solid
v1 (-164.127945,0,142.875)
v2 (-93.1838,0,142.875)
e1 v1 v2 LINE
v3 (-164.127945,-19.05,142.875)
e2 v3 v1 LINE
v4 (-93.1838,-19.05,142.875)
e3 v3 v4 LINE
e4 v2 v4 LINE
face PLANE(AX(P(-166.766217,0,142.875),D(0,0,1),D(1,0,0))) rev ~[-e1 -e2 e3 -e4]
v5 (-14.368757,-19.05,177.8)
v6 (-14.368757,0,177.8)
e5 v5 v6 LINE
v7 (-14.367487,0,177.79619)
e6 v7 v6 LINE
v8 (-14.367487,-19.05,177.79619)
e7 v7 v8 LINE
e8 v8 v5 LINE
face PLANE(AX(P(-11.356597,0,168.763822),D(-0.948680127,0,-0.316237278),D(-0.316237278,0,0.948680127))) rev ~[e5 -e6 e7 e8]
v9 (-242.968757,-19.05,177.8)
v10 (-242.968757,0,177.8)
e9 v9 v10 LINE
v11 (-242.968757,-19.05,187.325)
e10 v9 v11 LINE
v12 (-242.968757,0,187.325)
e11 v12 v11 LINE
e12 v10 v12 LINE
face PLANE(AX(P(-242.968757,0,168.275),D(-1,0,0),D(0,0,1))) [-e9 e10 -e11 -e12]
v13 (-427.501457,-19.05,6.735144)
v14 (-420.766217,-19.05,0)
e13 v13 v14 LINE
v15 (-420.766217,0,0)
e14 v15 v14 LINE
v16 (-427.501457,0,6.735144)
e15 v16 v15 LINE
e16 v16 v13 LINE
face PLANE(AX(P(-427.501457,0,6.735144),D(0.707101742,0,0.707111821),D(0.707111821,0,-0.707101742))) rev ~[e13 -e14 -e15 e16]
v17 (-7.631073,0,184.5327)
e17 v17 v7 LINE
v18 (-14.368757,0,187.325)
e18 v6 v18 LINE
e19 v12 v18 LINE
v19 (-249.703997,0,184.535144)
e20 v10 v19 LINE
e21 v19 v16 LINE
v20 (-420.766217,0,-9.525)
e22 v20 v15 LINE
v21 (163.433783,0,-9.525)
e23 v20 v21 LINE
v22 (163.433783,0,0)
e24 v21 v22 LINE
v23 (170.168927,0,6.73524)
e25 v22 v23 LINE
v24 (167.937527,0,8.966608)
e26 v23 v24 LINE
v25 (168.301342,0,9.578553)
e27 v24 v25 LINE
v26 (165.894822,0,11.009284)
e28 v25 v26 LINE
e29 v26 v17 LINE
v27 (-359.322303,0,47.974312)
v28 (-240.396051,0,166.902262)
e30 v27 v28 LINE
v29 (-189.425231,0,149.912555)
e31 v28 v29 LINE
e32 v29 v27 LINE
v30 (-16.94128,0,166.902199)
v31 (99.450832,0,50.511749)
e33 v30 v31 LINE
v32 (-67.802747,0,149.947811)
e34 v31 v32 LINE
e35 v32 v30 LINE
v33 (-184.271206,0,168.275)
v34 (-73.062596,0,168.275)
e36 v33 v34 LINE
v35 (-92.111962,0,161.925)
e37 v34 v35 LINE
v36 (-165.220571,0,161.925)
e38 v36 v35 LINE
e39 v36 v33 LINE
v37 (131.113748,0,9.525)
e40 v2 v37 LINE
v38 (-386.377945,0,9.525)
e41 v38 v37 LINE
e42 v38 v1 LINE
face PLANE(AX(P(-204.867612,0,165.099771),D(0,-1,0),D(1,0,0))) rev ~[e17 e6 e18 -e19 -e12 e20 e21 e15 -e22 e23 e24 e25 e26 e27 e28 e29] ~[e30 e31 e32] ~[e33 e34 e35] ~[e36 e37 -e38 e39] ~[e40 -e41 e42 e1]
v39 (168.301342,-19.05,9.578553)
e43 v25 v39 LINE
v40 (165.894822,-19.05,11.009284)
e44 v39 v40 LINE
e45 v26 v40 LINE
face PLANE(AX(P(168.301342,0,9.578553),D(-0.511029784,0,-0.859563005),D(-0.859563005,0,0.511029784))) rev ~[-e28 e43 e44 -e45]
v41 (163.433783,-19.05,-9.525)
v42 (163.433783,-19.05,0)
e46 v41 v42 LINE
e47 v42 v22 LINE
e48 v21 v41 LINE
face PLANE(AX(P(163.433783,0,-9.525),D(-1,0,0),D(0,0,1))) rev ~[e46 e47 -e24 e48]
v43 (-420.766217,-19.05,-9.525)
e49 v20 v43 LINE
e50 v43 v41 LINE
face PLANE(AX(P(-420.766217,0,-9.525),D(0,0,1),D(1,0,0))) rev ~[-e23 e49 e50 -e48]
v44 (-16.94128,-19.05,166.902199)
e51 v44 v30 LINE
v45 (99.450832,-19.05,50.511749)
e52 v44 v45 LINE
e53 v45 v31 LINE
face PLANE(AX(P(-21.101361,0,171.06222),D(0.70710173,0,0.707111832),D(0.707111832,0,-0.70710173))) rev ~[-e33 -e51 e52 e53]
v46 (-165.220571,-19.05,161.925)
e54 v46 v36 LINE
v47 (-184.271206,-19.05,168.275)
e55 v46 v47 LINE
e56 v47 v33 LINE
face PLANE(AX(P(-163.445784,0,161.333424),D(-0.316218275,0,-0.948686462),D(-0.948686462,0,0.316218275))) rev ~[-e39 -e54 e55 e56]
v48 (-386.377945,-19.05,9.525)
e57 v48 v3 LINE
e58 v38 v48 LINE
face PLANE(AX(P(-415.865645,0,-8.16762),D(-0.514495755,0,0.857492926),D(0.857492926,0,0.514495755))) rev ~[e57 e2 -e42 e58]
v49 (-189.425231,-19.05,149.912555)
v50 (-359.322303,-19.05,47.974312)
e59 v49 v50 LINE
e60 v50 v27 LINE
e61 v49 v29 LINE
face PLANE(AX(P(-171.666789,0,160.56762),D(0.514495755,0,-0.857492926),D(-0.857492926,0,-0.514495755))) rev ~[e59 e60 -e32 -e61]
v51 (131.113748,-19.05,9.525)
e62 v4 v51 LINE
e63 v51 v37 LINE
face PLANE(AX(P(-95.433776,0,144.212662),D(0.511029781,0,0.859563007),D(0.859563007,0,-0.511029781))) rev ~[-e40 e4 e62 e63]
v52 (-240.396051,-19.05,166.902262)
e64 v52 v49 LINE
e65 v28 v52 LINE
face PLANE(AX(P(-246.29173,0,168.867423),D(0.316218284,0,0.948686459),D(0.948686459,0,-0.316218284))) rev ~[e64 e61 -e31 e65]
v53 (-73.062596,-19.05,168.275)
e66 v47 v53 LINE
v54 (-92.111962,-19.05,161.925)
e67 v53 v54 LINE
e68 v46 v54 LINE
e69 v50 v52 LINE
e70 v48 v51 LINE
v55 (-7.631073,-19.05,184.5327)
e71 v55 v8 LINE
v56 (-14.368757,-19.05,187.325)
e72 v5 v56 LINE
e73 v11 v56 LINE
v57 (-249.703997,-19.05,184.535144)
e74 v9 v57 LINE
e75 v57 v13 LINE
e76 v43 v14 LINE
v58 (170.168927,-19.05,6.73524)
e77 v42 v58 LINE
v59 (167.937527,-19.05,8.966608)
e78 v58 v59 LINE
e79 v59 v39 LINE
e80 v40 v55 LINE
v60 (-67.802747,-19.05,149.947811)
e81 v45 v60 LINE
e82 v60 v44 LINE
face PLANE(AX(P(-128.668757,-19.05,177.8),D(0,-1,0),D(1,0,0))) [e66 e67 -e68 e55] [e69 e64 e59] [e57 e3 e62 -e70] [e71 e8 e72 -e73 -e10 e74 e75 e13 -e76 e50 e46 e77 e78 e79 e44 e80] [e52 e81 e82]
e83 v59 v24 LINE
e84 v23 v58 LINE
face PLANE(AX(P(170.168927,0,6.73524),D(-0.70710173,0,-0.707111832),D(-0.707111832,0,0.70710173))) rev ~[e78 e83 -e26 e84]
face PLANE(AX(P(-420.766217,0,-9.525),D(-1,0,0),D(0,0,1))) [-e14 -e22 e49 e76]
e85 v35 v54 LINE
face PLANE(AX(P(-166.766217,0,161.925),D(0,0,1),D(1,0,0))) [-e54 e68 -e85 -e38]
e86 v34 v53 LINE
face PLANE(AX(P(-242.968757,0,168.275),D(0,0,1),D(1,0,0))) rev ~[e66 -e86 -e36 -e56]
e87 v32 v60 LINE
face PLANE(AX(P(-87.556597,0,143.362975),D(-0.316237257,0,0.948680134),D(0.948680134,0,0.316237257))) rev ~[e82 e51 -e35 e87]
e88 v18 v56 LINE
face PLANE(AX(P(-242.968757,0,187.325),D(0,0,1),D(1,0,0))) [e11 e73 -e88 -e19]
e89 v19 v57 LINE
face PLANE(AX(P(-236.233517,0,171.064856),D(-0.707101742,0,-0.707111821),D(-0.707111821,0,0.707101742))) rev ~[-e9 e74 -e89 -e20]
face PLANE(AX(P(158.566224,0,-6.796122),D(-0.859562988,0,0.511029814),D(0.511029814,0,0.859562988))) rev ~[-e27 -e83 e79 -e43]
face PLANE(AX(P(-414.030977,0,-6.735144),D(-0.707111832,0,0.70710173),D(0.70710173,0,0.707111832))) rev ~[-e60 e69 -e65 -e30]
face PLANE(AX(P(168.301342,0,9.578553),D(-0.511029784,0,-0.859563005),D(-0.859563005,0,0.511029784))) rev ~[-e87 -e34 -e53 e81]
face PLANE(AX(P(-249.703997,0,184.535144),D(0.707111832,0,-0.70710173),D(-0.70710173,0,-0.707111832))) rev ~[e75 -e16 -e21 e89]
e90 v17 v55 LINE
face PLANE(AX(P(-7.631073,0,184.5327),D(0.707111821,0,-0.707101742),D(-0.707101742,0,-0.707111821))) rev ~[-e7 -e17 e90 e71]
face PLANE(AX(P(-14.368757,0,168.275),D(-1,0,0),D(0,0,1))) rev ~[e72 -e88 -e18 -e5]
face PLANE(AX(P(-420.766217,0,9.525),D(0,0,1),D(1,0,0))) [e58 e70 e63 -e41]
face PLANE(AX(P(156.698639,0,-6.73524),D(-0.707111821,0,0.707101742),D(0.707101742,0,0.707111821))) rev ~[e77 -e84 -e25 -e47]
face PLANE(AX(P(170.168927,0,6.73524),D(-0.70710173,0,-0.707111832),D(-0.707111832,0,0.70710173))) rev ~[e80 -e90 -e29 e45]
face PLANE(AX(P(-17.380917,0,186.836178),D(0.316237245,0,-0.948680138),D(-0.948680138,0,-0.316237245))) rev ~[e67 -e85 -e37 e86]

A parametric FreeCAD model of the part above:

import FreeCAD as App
import Part
import Sketcher

V = App.Vector
Q = App.Units.Quantity

doc = App.newDocument("Part")
params = doc.addObject("Spreadsheet::Sheet", "Params")
for row, (alias, value) in enumerate([
    ("sketch1_width", "23 in"),
    ("sketch1_width2", "9 in"),
    ("sketch1_height", "0.375 in"),
    ("sketch1_height2", "0.375 in"),
    ("sketch1_length", "0.375 in"),
    ("pad1_length", "0.75 in"),
], start=1):
    params.set(f"A{row}", alias)
    params.set(f"B{row}", "=" + value)
    params.setAlias(f"B{row}", alias)

body = doc.addObject("PartDesign::Body", "Body")

# Sketch on XZ plane
sketch1 = body.newObject("Sketcher::SketchObject", "Sketch")
sketch1.AttachmentSupport = (doc.getObject("XZ_Plane"), [""])
sketch1.MapMode = "FlatFace"
sketch1.addGeometry([
    Part.LineSegment(V(-242.968757, 187.325, 0), V(-242.968757, 177.8, 0)),  # 0
    Part.LineSegment(V(-242.968757, 177.8, 0), V(-249.703997, 184.535144, 0)),  # 1
    Part.LineSegment(V(-249.703997, 184.535144, 0), V(-427.501457, 6.735144, 0)),  # 2
    Part.LineSegment(V(-427.501457, 6.735144, 0), V(-420.766217, 0, 0)),  # 3
    Part.LineSegment(V(-420.766217, 0, 0), V(-420.766217, -9.525, 0)),  # 4
    Part.LineSegment(V(-420.766217, -9.525, 0), V(163.433783, -9.525, 0)),  # 5
    Part.LineSegment(V(163.433783, -9.525, 0), V(163.433783, 0, 0)),  # 6
    Part.LineSegment(V(163.433783, 0, 0), V(170.168927, 6.73524, 0)),  # 7
    Part.LineSegment(V(170.168927, 6.73524, 0), V(167.937527, 8.966608, 0)),  # 8
    Part.LineSegment(V(167.937527, 8.966608, 0), V(168.301342, 9.578553, 0)),  # 9
    Part.LineSegment(V(168.301342, 9.578553, 0), V(165.894822, 11.009284, 0)),  # 10
    Part.LineSegment(V(165.894822, 11.009284, 0), V(-7.631073, 184.5327, 0)),  # 11
    Part.LineSegment(V(-7.631073, 184.5327, 0), V(-14.367487, 177.79619, 0)),  # 12
    Part.LineSegment(V(-14.367487, 177.79619, 0), V(-14.368757, 177.8, 0)),  # 13
    Part.LineSegment(V(-14.368757, 177.8, 0), V(-14.368757, 187.325, 0)),  # 14
    Part.LineSegment(V(-14.368757, 187.325, 0), V(-242.968757, 187.325, 0)),  # 15
    Part.LineSegment(V(-92.111962, 161.925, 0), V(-165.220571, 161.925, 0)),  # 16
    Part.LineSegment(V(-165.220571, 161.925, 0), V(-184.271206, 168.275, 0)),  # 17
    Part.LineSegment(V(-184.271206, 168.275, 0), V(-73.062596, 168.275, 0)),  # 18
    Part.LineSegment(V(-73.062596, 168.275, 0), V(-92.111962, 161.925, 0)),  # 19
    Part.LineSegment(V(-164.127945, 142.875, 0), V(-93.1838, 142.875, 0)),  # 20
    Part.LineSegment(V(-93.1838, 142.875, 0), V(131.113748, 9.525, 0)),  # 21
    Part.LineSegment(V(131.113748, 9.525, 0), V(-386.377945, 9.525, 0)),  # 22
    Part.LineSegment(V(-386.377945, 9.525, 0), V(-164.127945, 142.875, 0)),  # 23
    Part.LineSegment(V(-67.802747, 149.947811, 0), V(-16.94128, 166.902199, 0)),  # 24
    Part.LineSegment(V(-16.94128, 166.902199, 0), V(99.450832, 50.511749, 0)),  # 25
    Part.LineSegment(V(99.450832, 50.511749, 0), V(-67.802747, 149.947811, 0)),  # 26
    Part.LineSegment(V(-240.396051, 166.902262, 0), V(-189.425231, 149.912555, 0)),  # 27
    Part.LineSegment(V(-189.425231, 149.912555, 0), V(-359.322303, 47.974312, 0)),  # 28
    Part.LineSegment(V(-359.322303, 47.974312, 0), V(-240.396051, 166.902262, 0)),  # 29
], False)
sketch1.addConstraint([
    Sketcher.Constraint("Coincident", 0, 2, 1, 1),
    Sketcher.Constraint("Coincident", 1, 2, 2, 1),
    Sketcher.Constraint("Coincident", 2, 2, 3, 1),
    Sketcher.Constraint("Coincident", 3, 2, 4, 1),
    Sketcher.Constraint("Coincident", 4, 2, 5, 1),
    Sketcher.Constraint("Coincident", 5, 2, 6, 1),
    Sketcher.Constraint("Coincident", 6, 2, 7, 1),
    Sketcher.Constraint("Coincident", 7, 2, 8, 1),
    Sketcher.Constraint("Coincident", 8, 2, 9, 1),
    Sketcher.Constraint("Coincident", 9, 2, 10, 1),
    Sketcher.Constraint("Coincident", 10, 2, 11, 1),
    Sketcher.Constraint("Coincident", 11, 2, 12, 1),
    Sketcher.Constraint("Coincident", 12, 2, 13, 1),
    Sketcher.Constraint("Coincident", 13, 2, 14, 1),
    Sketcher.Constraint("Coincident", 14, 2, 15, 1),
    Sketcher.Constraint("Coincident", 15, 2, 0, 1),
    Sketcher.Constraint("Coincident", 16, 2, 17, 1),
    Sketcher.Constraint("Coincident", 17, 2, 18, 1),
    Sketcher.Constraint("Coincident", 18, 2, 19, 1),
    Sketcher.Constraint("Coincident", 19, 2, 16, 1),
    Sketcher.Constraint("Coincident", 20, 2, 21, 1),
    Sketcher.Constraint("Coincident", 21, 2, 22, 1),
    Sketcher.Constraint("Coincident", 22, 2, 23, 1),
    Sketcher.Constraint("Coincident", 23, 2, 20, 1),
    Sketcher.Constraint("Coincident", 24, 2, 25, 1),
    Sketcher.Constraint("Coincident", 25, 2, 26, 1),
    Sketcher.Constraint("Coincident", 26, 2, 24, 1),
    Sketcher.Constraint("Coincident", 27, 2, 28, 1),
    Sketcher.Constraint("Coincident", 28, 2, 29, 1),
    Sketcher.Constraint("Coincident", 29, 2, 27, 1),
    Sketcher.Constraint("Vertical", 0),
    Sketcher.Constraint("Vertical", 4),
    Sketcher.Constraint("Horizontal", 5),
    Sketcher.Constraint("Vertical", 6),
    Sketcher.Constraint("Vertical", 14),
    Sketcher.Constraint("Horizontal", 15),
    Sketcher.Constraint("Horizontal", 16),
    Sketcher.Constraint("Horizontal", 18),
    Sketcher.Constraint("Horizontal", 20),
    Sketcher.Constraint("Horizontal", 22),
    Sketcher.Constraint("PointOnObject", 3, 2, -1),
    Sketcher.Constraint("PointOnObject", 6, 2, -1),
    Sketcher.Constraint("DistanceX", 5, 1, 5, 2, Q("23 in")),
    Sketcher.Constraint("DistanceX", 15, 2, 15, 1, Q("9 in")),
    Sketcher.Constraint("DistanceY", -1, 1, 0, 2, Q("7 in")),
    Sketcher.Constraint("DistanceY", -1, 1, 13, 2, Q("7 in")),
    Sketcher.Constraint("DistanceY", 2, 2, 1, 2, Q("7 in")),
    Sketcher.Constraint("DistanceY", 16, 2, 15, 2, Q("1 in")),
    Sketcher.Constraint("DistanceY", 20, 2, 18, 2, Q("1 in")),
    Sketcher.Constraint("DistanceY", 0, 2, 0, 1, Q("0.375 in")),
    Sketcher.Constraint("DistanceY", 4, 2, 4, 1, Q("0.375 in")),
    Sketcher.Constraint("DistanceY", 16, 2, 17, 2, Q("0.25 in")),
    Sketcher.Constraint("DistanceY", 5, 2, 21, 2, Q("0.75 in")),
    Sketcher.Constraint("Distance", 1, Q("0.375 in")),
    Sketcher.Constraint("Distance", 3, Q("0.375 in")),
    Sketcher.Constraint("Distance", 7, Q("0.375 in")),
    Sketcher.Constraint("DistanceX", 2, 2, 1, 2, Q("6.9999 in")),
    Sketcher.Constraint("Distance", 10, Q("2.799702 mm")),
    Sketcher.Constraint("DistanceX", 16, 2, 16, 1, Q("73.108609 mm")),
    Sketcher.Constraint("DistanceX", 18, 1, 18, 2, Q("111.20861 mm")),
    Sketcher.Constraint("DistanceY", -1, 1, 11, 2, Q("184.5327 mm")),
    Sketcher.Constraint("DistanceX", 20, 2, -1, 1, Q("93.1838 mm")),
    Sketcher.Constraint("DistanceY", -1, 1, 24, 2, Q("166.902199 mm")),
    Sketcher.Constraint("DistanceX", 2, 2, 0, 2, Q("184.5327 mm")),
    Sketcher.Constraint("DistanceX", 8, 2, 7, 2, Q("2.2314 mm")),
    Sketcher.Constraint("DistanceX", 0, 2, 9, 2, Q("411.270099 mm")),
    Sketcher.Constraint("DistanceX", 11, 2, 8, 2, Q("175.5686 mm")),
    Sketcher.Constraint("Distance", 11, Q("245.400921 mm")),
    Sketcher.Constraint("Distance", 19, Q("20.079861 mm")),
    Sketcher.Constraint("Distance", 23, Q("259.185812 mm")),
    Sketcher.Constraint("Distance", 24, Q("53.612872 mm")),
    Sketcher.Constraint("Distance", 28, Q("198.132331 mm")),
    Sketcher.Constraint("Distance", 29, Q("168.188319 mm")),
    Sketcher.Constraint("DistanceX", 20, 1, 20, 2, Q("70.944145 mm")),
    Sketcher.Constraint("DistanceX", 22, 2, 22, 1, Q("517.491693 mm")),
    Sketcher.Constraint("DistanceY", -1, 1, 7, 2, Q("6.73524 mm")),
    Sketcher.Constraint("DistanceY", -1, 1, 8, 2, Q("8.966608 mm")),
    Sketcher.Constraint("DistanceX", -1, 1, 9, 2, Q("168.301342 mm")),
    Sketcher.Constraint("DistanceX", -1, 1, 10, 2, Q("165.894822 mm")),
    Sketcher.Constraint("DistanceY", -1, 1, 12, 2, Q("177.79619 mm")),
    Sketcher.Constraint("DistanceX", 16, 2, -1, 1, Q("165.220571 mm")),
    Sketcher.Constraint("DistanceX", 24, 2, -1, 1, Q("16.94128 mm")),
    Sketcher.Constraint("DistanceX", -1, 1, 25, 2, Q("99.450832 mm")),
    Sketcher.Constraint("DistanceY", -1, 1, 25, 2, Q("50.511749 mm")),
    Sketcher.Constraint("DistanceY", -1, 1, 26, 2, Q("149.947811 mm")),
    Sketcher.Constraint("DistanceX", 27, 2, -1, 1, Q("189.425231 mm")),
    Sketcher.Constraint("DistanceY", -1, 1, 28, 2, Q("47.974312 mm")),
    Sketcher.Constraint("DistanceX", 29, 2, -1, 1, Q("240.396051 mm")),
    Sketcher.Constraint("DistanceX", 0, 2, 12, 2, Q("228.60127 mm")),
    Sketcher.Constraint("DistanceY", 29, 2, 1, 2, Q("17.632882 mm")),
])
sketch1.setExpression("Constraints[42]", "Params.sketch1_width")
sketch1.setExpression("Constraints[43]", "Params.sketch1_width2")
sketch1.setExpression("Constraints[49]", "Params.sketch1_height")
sketch1.setExpression("Constraints[50]", "Params.sketch1_height2")
sketch1.setExpression("Constraints[53]", "Params.sketch1_length")
pad1 = body.newObject("PartDesign::Pad", "Pad")
pad1.Profile = sketch1
pad1.setExpression("Length", "Params.pad1_length")

doc.recompute()
